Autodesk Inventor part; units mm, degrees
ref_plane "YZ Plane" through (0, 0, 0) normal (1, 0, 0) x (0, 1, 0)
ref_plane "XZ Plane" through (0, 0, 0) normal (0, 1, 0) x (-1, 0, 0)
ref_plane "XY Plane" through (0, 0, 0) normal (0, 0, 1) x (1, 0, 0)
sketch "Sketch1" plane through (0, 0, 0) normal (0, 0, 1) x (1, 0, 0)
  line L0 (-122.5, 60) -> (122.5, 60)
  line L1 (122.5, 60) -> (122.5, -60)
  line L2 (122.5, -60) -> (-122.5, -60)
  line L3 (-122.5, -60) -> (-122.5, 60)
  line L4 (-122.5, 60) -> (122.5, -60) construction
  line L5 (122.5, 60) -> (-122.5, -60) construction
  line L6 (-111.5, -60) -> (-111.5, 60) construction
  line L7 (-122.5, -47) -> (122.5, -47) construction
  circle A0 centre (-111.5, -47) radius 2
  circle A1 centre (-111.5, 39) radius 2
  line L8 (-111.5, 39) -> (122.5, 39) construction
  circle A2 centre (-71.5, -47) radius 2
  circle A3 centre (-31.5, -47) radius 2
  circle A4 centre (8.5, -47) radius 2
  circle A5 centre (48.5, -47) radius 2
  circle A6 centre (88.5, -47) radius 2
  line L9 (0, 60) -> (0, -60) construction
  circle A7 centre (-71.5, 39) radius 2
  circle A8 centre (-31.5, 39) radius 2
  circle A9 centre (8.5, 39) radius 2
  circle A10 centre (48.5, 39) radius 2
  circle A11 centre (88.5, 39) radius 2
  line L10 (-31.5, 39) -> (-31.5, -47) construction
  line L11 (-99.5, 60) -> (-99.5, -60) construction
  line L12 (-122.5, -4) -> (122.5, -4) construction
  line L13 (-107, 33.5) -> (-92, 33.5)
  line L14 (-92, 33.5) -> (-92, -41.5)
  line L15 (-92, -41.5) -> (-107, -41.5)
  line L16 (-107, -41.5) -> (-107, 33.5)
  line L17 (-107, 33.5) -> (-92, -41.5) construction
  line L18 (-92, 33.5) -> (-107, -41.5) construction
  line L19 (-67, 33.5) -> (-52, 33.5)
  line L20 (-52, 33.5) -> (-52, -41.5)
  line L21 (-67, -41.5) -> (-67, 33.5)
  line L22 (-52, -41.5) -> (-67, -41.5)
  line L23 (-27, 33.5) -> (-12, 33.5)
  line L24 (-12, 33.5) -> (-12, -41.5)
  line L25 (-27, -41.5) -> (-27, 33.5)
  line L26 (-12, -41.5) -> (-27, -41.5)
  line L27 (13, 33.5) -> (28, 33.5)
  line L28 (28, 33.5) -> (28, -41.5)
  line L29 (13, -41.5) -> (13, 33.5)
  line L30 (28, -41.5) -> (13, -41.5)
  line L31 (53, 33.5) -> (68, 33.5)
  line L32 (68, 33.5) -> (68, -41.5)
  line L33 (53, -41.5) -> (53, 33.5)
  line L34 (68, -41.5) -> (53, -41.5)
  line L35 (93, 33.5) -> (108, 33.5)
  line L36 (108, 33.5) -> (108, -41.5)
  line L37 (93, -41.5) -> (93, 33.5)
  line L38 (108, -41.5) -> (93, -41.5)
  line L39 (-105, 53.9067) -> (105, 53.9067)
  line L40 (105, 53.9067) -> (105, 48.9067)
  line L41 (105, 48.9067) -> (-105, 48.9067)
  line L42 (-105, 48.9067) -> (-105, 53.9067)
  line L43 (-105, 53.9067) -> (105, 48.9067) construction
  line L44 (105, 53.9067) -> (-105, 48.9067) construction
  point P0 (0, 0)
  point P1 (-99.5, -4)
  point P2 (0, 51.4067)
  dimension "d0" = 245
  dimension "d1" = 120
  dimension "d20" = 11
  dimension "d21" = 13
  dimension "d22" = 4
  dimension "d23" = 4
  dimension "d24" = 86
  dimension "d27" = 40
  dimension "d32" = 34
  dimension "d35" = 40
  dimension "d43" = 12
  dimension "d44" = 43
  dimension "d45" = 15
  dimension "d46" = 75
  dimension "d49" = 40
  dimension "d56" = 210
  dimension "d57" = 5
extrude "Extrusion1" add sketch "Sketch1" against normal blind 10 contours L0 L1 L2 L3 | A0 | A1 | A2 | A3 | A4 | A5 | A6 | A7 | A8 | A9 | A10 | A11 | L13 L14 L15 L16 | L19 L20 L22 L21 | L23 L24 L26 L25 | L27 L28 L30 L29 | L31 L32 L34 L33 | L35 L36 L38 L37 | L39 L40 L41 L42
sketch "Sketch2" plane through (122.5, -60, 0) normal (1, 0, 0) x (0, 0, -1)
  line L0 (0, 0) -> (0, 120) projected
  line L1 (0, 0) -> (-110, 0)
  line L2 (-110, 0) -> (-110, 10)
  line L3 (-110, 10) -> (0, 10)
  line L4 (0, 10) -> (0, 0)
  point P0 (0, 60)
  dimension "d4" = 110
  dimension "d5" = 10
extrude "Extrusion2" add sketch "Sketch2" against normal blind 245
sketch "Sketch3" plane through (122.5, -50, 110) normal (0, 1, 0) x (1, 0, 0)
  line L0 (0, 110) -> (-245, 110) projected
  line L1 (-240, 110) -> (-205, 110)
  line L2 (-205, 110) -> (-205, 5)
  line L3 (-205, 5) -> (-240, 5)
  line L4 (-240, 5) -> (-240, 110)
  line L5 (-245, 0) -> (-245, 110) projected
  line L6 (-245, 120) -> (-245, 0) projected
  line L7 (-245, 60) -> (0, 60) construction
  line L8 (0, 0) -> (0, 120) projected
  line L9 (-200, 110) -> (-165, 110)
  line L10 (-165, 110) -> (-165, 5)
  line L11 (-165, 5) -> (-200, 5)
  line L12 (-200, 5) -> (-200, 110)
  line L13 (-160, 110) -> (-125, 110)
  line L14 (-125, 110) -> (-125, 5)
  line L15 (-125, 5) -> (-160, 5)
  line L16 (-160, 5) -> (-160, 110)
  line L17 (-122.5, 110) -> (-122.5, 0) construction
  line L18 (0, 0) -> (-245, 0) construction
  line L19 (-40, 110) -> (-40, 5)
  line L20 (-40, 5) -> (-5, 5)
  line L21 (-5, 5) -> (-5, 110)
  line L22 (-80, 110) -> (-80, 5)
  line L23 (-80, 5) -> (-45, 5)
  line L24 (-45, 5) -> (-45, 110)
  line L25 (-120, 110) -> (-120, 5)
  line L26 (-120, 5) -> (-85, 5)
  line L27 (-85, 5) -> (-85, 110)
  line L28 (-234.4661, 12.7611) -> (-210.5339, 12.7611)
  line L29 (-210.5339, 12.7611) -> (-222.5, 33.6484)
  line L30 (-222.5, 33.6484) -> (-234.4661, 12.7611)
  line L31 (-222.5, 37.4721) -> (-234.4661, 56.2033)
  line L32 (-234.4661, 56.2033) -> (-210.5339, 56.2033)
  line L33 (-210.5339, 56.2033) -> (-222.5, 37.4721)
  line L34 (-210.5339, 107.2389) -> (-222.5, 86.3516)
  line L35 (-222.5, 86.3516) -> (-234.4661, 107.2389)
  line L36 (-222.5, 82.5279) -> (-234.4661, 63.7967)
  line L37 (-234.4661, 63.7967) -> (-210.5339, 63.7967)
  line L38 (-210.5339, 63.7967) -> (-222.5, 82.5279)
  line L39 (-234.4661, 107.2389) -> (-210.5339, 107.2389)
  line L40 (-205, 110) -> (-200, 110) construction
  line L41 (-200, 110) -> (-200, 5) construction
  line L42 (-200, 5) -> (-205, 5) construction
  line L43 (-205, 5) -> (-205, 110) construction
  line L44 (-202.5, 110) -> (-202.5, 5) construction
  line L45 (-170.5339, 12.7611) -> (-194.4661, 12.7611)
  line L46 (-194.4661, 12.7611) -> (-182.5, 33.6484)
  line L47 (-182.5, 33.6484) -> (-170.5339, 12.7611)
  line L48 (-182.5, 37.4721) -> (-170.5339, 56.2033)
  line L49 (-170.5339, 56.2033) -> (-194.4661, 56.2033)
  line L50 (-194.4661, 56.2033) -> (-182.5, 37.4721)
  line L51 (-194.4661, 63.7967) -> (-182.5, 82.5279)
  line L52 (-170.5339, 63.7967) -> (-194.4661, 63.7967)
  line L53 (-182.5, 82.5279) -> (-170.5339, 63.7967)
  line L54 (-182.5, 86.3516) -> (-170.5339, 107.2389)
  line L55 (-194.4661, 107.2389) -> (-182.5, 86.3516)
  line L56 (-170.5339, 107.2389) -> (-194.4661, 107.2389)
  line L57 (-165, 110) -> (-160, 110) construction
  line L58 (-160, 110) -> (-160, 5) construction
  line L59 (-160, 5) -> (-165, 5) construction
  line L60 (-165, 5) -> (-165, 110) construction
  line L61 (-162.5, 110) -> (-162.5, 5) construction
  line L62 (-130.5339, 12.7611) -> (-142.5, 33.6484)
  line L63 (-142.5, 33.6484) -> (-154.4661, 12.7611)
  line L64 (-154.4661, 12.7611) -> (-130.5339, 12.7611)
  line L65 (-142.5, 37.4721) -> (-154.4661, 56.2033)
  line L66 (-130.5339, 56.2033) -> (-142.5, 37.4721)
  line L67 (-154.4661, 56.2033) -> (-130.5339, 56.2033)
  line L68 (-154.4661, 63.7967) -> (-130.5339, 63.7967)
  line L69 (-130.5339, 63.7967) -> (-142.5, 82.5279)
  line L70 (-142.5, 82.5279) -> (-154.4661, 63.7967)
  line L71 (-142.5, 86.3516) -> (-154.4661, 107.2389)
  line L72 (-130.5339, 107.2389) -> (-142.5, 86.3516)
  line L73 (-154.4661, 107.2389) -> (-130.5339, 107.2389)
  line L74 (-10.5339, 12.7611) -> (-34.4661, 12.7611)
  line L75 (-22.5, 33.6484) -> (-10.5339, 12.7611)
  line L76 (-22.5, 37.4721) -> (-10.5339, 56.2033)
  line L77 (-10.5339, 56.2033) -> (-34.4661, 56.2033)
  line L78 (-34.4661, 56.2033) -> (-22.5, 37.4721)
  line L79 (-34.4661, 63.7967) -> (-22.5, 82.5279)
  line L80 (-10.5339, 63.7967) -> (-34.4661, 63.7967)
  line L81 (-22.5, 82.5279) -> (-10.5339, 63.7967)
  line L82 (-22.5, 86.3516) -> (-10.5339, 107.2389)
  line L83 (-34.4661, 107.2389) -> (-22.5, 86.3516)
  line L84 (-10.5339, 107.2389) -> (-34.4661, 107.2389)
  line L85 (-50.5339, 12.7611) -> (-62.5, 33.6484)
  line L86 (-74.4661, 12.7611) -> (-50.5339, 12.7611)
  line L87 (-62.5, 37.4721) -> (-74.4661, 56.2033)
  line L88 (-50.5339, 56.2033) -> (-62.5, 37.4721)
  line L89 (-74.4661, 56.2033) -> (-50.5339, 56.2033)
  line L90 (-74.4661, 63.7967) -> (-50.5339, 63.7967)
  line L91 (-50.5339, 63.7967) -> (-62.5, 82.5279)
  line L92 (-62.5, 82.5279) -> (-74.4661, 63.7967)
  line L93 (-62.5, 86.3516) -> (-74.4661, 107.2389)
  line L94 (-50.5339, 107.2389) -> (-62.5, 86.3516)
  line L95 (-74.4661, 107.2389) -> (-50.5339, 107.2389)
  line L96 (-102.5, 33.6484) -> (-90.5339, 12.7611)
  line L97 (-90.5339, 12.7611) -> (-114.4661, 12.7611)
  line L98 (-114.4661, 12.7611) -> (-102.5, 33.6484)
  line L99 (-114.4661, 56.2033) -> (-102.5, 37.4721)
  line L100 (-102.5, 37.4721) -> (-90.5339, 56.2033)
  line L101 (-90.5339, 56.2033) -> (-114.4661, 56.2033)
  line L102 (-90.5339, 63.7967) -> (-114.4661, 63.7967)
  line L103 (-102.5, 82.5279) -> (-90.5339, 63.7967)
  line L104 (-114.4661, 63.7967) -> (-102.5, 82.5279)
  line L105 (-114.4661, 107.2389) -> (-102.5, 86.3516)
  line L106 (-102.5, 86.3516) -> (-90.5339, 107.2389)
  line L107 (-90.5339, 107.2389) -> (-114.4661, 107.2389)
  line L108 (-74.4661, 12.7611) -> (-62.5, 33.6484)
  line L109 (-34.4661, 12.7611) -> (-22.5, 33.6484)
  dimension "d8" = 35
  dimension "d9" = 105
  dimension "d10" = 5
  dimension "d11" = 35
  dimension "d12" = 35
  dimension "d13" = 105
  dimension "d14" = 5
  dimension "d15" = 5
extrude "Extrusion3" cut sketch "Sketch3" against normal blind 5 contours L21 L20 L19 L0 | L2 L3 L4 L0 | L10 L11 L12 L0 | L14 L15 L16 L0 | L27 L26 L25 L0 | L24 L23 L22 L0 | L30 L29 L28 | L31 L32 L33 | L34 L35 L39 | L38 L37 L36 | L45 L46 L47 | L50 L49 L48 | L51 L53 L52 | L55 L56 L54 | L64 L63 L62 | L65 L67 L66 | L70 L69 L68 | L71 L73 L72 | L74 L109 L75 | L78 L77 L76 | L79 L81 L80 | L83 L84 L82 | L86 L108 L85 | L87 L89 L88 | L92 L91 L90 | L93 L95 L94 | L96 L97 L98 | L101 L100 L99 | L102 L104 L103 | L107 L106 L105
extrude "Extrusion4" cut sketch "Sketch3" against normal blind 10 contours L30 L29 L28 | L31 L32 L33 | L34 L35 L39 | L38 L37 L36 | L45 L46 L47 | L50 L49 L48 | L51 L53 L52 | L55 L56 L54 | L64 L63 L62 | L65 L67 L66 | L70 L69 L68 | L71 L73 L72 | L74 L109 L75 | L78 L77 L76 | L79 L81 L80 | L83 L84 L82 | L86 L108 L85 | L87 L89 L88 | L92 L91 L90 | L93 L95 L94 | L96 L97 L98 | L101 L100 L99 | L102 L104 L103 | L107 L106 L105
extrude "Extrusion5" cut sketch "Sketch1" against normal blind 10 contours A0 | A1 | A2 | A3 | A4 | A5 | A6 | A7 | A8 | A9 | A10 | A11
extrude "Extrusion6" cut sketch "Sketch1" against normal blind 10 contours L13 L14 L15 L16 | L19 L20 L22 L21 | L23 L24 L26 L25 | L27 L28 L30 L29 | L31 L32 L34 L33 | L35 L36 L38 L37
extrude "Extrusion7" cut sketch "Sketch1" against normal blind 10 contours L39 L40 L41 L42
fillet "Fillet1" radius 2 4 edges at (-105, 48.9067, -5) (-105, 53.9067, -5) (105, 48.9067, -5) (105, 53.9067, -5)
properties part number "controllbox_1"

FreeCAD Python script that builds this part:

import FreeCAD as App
import Part
import Sketcher

V = App.Vector
Q = App.Units.Quantity


def edges_at(feature, points):
    """Names of the edges that pass closest to the given points."""
    edges = feature.Shape.Edges
    near = lambda p: min(range(len(edges)), key=lambda i: edges[i].distToShape(Part.Vertex(*p))[0])
    return sorted({f"Edge{near(p) + 1}" for p in points})


def add_polygon(sketch, points):
    """Adds a closed chain of lines whose ends are joined by coincident constraints."""
    first, n = sketch.GeometryCount, len(points)
    for a, b in zip(points, points[1:] + points[:1]):
        sketch.addGeometry(Part.LineSegment(App.Vector(*a, 0), App.Vector(*b, 0)), False)
    for i in range(n):
        sketch.addConstraint(Sketcher.Constraint("Coincident", first + i, 2, first + (i + 1) % n, 1))

doc = App.newDocument("Part")
body = doc.addObject("PartDesign::Body", "Body")

# Sketch on XY plane
sketch1 = body.newObject("Sketcher::SketchObject", "Sketch")
sketch1.AttachmentSupport = (doc.getObject("XY_Plane"), [""])
sketch1.MapMode = "FlatFace"
add_polygon(sketch1, [(122, 60), (-122, 60), (-122, -60), (122, -60)])  # lines 0-3
sketch1.addConstraint([
    Sketcher.Constraint("Horizontal", 0),
    Sketcher.Constraint("Vertical", 1),
    Sketcher.Constraint("Horizontal", 2),
    Sketcher.Constraint("Vertical", 3),
    Sketcher.Constraint("Symmetric", 0, 2, 2, 2, -1, 1),
    Sketcher.Constraint("DistanceX", 0, 2, 0, 1, Q("245 mm")),
    Sketcher.Constraint("DistanceY", 1, 2, 1, 1, Q("120 mm")),
])
pad1 = body.newObject("PartDesign::Pad", "Pad")
pad1.Profile = sketch1
pad1.Length = 10
pad1.Reversed = True

# Sketch on YZ plane
sketch2 = body.newObject("Sketcher::SketchObject", "Sketch001")
sketch2.AttachmentSupport = (doc.getObject("YZ_Plane"), [""])
sketch2.MapMode = "FlatFace"
sketch2.AttachmentOffset = App.Placement(V(0, 0, 122.5), App.Rotation())
add_polygon(sketch2, [(-60, 110), (-60, 0), (-50, 0), (-50, 110)])  # lines 0-3
sketch2.addConstraint([
    Sketcher.Constraint("Vertical", 0),
    Sketcher.Constraint("Horizontal", 1),
    Sketcher.Constraint("Vertical", 2),
    Sketcher.Constraint("Horizontal", 3),
    Sketcher.Constraint("PointOnObject", 0, 2, -1),
    Sketcher.Constraint("DistanceX", 1, 1, 1, 2, Q("10 mm")),
    Sketcher.Constraint("DistanceY", 0, 2, 0, 1, Q("110 mm")),
    Sketcher.Constraint("DistanceX", 0, 2, -1, 1, Q("60 mm")),
])
pad2 = body.newObject("PartDesign::Pad", "Pad001")
pad2.Profile = sketch2
pad2.Length = 245
pad2.Reversed = True

# Sketch on XZ plane
sketch3 = body.newObject("Sketcher::SketchObject", "Sketch002")
sketch3.AttachmentSupport = (doc.getObject("XZ_Plane"), [""])
sketch3.MapMode = "FlatFace"
sketch3.AttachmentOffset = App.Placement(V(0, 0, 50), App.Rotation())
add_polygon(sketch3, [(118, 105), (118, 0), (82, 0), (82, 105)])  # lines 0-3
add_polygon(sketch3, [(-82, 105), (-82, 0), (-118, 0), (-118, 105)])  # lines 4-7
add_polygon(sketch3, [(-42, 105), (-42, 0), (-78, 0), (-78, 105)])  # lines 8-11
add_polygon(sketch3, [(-2, 105), (-2, 0), (-38, 0), (-38, 105)])  # lines 12-15
add_polygon(sketch3, [(38, 105), (38, 0), (2, 0), (2, 105)])  # lines 16-19
add_polygon(sketch3, [(78, 105), (78, 0), (42, 0), (42, 105)])  # lines 20-23
sketch3.addConstraint([
    Sketcher.Constraint("Vertical", 0),
    Sketcher.Constraint("Horizontal", 1),
    Sketcher.Constraint("Vertical", 2),
    Sketcher.Constraint("Horizontal", 3),
    Sketcher.Constraint("Vertical", 4),
    Sketcher.Constraint("Horizontal", 5),
    Sketcher.Constraint("Vertical", 6),
    Sketcher.Constraint("Horizontal", 7),
    Sketcher.Constraint("Vertical", 8),
    Sketcher.Constraint("Horizontal", 9),
    Sketcher.Constraint("Vertical", 10),
    Sketcher.Constraint("Horizontal", 11),
    Sketcher.Constraint("Vertical", 12),
    Sketcher.Constraint("Horizontal", 13),
    Sketcher.Constraint("Vertical", 14),
    Sketcher.Constraint("Horizontal", 15),
    Sketcher.Constraint("Vertical", 16),
    Sketcher.Constraint("Horizontal", 17),
    Sketcher.Constraint("Vertical", 18),
    Sketcher.Constraint("Horizontal", 19),
    Sketcher.Constraint("Vertical", 20),
    Sketcher.Constraint("Horizontal", 21),
    Sketcher.Constraint("Vertical", 22),
    Sketcher.Constraint("Horizontal", 23),
    Sketcher.Constraint("Symmetric", 1, 2, 4, 2, -1, 1),
    Sketcher.Constraint("Symmetric", 13, 2, 16, 2, -1, 1),
    Sketcher.Constraint("Symmetric", 9, 2, 20, 2, -1, 1),
    Sketcher.Constraint("Symmetric", 0, 2, 5, 2, -2),
    Sketcher.Constraint("Symmetric", 12, 2, 17, 2, -2),
    Sketcher.Constraint("Symmetric", 8, 2, 21, 2, -2),
    Sketcher.Constraint("Horizontal", 3, 2, 6, 2),
    Sketcher.Constraint("Horizontal", 7, 2, 10, 2),
    Sketcher.Constraint("Horizontal", 11, 2, 14, 2),
    Sketcher.Constraint("Horizontal", 15, 2, 18, 2),
    Sketcher.Constraint("Horizontal", 19, 2, 22, 2),
    Sketcher.Constraint("Equal", 7, 9),
    Sketcher.Constraint("Equal", 11, 13),
    Sketcher.Constraint("DistanceX", 1, 2, 1, 1, Q("35 mm")),
    Sketcher.Constraint("DistanceY", 0, 2, 0, 1, Q("105 mm")),
    Sketcher.Constraint("DistanceX", 4, 2, 9, 2, Q("5 mm")),
    Sketcher.Constraint("DistanceX", 8, 2, 13, 2, Q("5 mm")),
    Sketcher.Constraint("DistanceX", 12, 2, 17, 2, Q("5 mm")),
])
pocket1 = body.newObject("PartDesign::Pocket", "Pocket")
pocket1.Profile = sketch3
pocket1.Length = 5
pocket1.Reversed = True

# Sketch on XZ plane
sketch4 = body.newObject("Sketcher::SketchObject", "Sketch003")
sketch4.AttachmentSupport = (doc.getObject("XZ_Plane"), [""])
sketch4.MapMode = "FlatFace"
sketch4.AttachmentOffset = App.Placement(V(0, 0, 50), App.Rotation())
add_polygon(sketch4, [(-100, 76), (-112, 97), (-88, 97)])  # lines 0-2
add_polygon(sketch4, [(-112, 54), (-100, 73), (-88, 54)])  # lines 3-5
add_polygon(sketch4, [(-100, 24), (-88, 3), (-112, 3)])  # lines 6-8
add_polygon(sketch4, [(-88, 46), (-100, 27), (-112, 46)])  # lines 9-11
add_polygon(sketch4, [(-72, 97), (-48, 97), (-60, 76)])  # lines 12-14
add_polygon(sketch4, [(-72, 54), (-60, 73), (-48, 54)])  # lines 15-17
add_polygon(sketch4, [(-60, 27), (-72, 46), (-48, 46)])  # lines 18-20
add_polygon(sketch4, [(-72, 3), (-60, 24), (-48, 3)])  # lines 21-23
add_polygon(sketch4, [(-32, 97), (-8, 97), (-20, 76)])  # lines 24-26
add_polygon(sketch4, [(-32, 54), (-20, 73), (-8, 54)])  # lines 27-29
add_polygon(sketch4, [(-20, 27), (-32, 46), (-8, 46)])  # lines 30-32
add_polygon(sketch4, [(-32, 3), (-20, 24), (-8, 3)])  # lines 33-35
add_polygon(sketch4, [(88, 97), (112, 97), (100, 76)])  # lines 36-38
add_polygon(sketch4, [(88, 54), (100, 73), (112, 54)])  # lines 39-41
add_polygon(sketch4, [(100, 27), (88, 46), (112, 46)])  # lines 42-44
add_polygon(sketch4, [(88, 3), (100, 24), (112, 3)])  # lines 45-47
add_polygon(sketch4, [(48, 97), (72, 97), (60, 76)])  # lines 48-50
add_polygon(sketch4, [(48, 54), (60, 73), (72, 54)])  # lines 51-53
add_polygon(sketch4, [(60, 27), (48, 46), (72, 46)])  # lines 54-56
add_polygon(sketch4, [(48, 3), (60, 24), (72, 3)])  # lines 57-59
add_polygon(sketch4, [(32, 97), (20, 76), (8, 97)])  # lines 60-62
add_polygon(sketch4, [(32, 54), (8, 54), (20, 73)])  # lines 63-65
add_polygon(sketch4, [(8, 46), (32, 46), (20, 27)])  # lines 66-68
add_polygon(sketch4, [(32, 3), (8, 3), (20, 24)])  # lines 69-71
sketch4.addConstraint([
    Sketcher.Constraint("Horizontal", 1),
    Sketcher.Constraint("Horizontal", 5),
    Sketcher.Constraint("Horizontal", 7),
    Sketcher.Constraint("Horizontal", 11),
    Sketcher.Constraint("Horizontal", 12),
    Sketcher.Constraint("Horizontal", 17),
    Sketcher.Constraint("Horizontal", 19),
    Sketcher.Constraint("Horizontal", 23),
    Sketcher.Constraint("Horizontal", 24),
    Sketcher.Constraint("Horizontal", 29),
    Sketcher.Constraint("Horizontal", 31),
    Sketcher.Constraint("Horizontal", 35),
    Sketcher.Constraint("Horizontal", 36),
    Sketcher.Constraint("Horizontal", 41),
    Sketcher.Constraint("Horizontal", 43),
    Sketcher.Constraint("Horizontal", 47),
    Sketcher.Constraint("Horizontal", 48),
    Sketcher.Constraint("Horizontal", 53),
    Sketcher.Constraint("Horizontal", 55),
    Sketcher.Constraint("Horizontal", 59),
    Sketcher.Constraint("Horizontal", 62),
    Sketcher.Constraint("Horizontal", 63),
    Sketcher.Constraint("Horizontal", 66),
    Sketcher.Constraint("Horizontal", 69),
    Sketcher.Constraint("Symmetric", 0, 2, 36, 2, -2),
    Sketcher.Constraint("Symmetric", 2, 2, 37, 2, -2),
    Sketcher.Constraint("Symmetric", 3, 2, 39, 2, -2),
    Sketcher.Constraint("Symmetric", 5, 2, 40, 2, -2),
    Sketcher.Constraint("Symmetric", 11, 2, 42, 2, -2),
    Sketcher.Constraint("Symmetric", 9, 2, 44, 2, -2),
    Sketcher.Constraint("Symmetric", 8, 2, 45, 2, -2),
    Sketcher.Constraint("Symmetric", 7, 2, 46, 2, -2),
    Sketcher.Constraint("Symmetric", 14, 2, 48, 2, -2),
    Sketcher.Constraint("Symmetric", 13, 2, 49, 2, -2),
    Sketcher.Constraint("Symmetric", 15, 2, 51, 2, -2),
    Sketcher.Constraint("Symmetric", 17, 2, 52, 2, -2),
    Sketcher.Constraint("Symmetric", 19, 2, 54, 2, -2),
    Sketcher.Constraint("Symmetric", 20, 2, 56, 2, -2),
    Sketcher.Constraint("Symmetric", 21, 2, 57, 2, -2),
    Sketcher.Constraint("Symmetric", 23, 2, 58, 2, -2),
    Sketcher.Constraint("Symmetric", 25, 2, 60, 2, -2),
    Sketcher.Constraint("Symmetric", 24, 2, 61, 2, -2),
    Sketcher.Constraint("Symmetric", 28, 2, 63, 2, -2),
    Sketcher.Constraint("Symmetric", 27, 2, 64, 2, -2),
    Sketcher.Constraint("Symmetric", 30, 2, 66, 2, -2),
    Sketcher.Constraint("Symmetric", 32, 2, 67, 2, -2),
    Sketcher.Constraint("Symmetric", 34, 2, 69, 2, -2),
    Sketcher.Constraint("Symmetric", 33, 2, 70, 2, -2),
    Sketcher.Constraint("Parallel", 0, 6),
    Sketcher.Constraint("Parallel", 2, 8),
    Sketcher.Constraint("Parallel", 3, 9),
    Sketcher.Constraint("Parallel", 4, 10),
    Sketcher.Constraint("Parallel", 8, 13),
    Sketcher.Constraint("Parallel", 6, 14),
    Sketcher.Constraint("Parallel", 9, 15),
    Sketcher.Constraint("Parallel", 10, 16),
    Sketcher.Constraint("Parallel", 16, 18),
    Sketcher.Constraint("Parallel", 15, 20),
    Sketcher.Constraint("Parallel", 13, 21),
    Sketcher.Constraint("Parallel", 14, 22),
    Sketcher.Constraint("Parallel", 21, 25),
    Sketcher.Constraint("Parallel", 22, 26),
    Sketcher.Constraint("Parallel", 20, 27),
    Sketcher.Constraint("Parallel", 18, 28),
    Sketcher.Constraint("Parallel", 28, 30),
    Sketcher.Constraint("Parallel", 27, 32),
    Sketcher.Constraint("Parallel", 25, 33),
    Sketcher.Constraint("Parallel", 26, 34),
    Sketcher.Constraint("Parallel", 33, 37),
    Sketcher.Constraint("Parallel", 34, 38),
    Sketcher.Constraint("Parallel", 32, 39),
    Sketcher.Constraint("Parallel", 30, 40),
    Sketcher.Constraint("Parallel", 39, 44),
    Sketcher.Constraint("Parallel", 37, 45),
    Sketcher.Constraint("Parallel", 46, 50),
    Sketcher.Constraint("Parallel", 44, 51),
    Sketcher.Constraint("Parallel", 51, 56),
    Sketcher.Constraint("Parallel", 49, 57),
    Sketcher.Constraint("Parallel", 57, 60),
    Sketcher.Constraint("Parallel", 54, 65),
    Sketcher.Constraint("Parallel", 65, 68),
    Sketcher.Constraint("Parallel", 61, 71),
    Sketcher.Constraint("Horizontal", 1, 2, 12, 2),
    Sketcher.Constraint("Horizontal", 2, 2, 13, 2),
    Sketcher.Constraint("Horizontal", 3, 2, 15, 2),
    Sketcher.Constraint("Horizontal", 5, 2, 16, 2),
    Sketcher.Constraint("Horizontal", 11, 2, 18, 2),
    Sketcher.Constraint("Horizontal", 9, 2, 20, 2),
    Sketcher.Constraint("Horizontal", 8, 2, 21, 2),
    Sketcher.Constraint("Horizontal", 7, 2, 22, 2),
    Sketcher.Constraint("Horizontal", 14, 2, 24, 2),
    Sketcher.Constraint("Horizontal", 13, 2, 25, 2),
    Sketcher.Constraint("Horizontal", 15, 2, 27, 2),
    Sketcher.Constraint("Horizontal", 17, 2, 28, 2),
    Sketcher.Constraint("Horizontal", 19, 2, 30, 2),
    Sketcher.Constraint("Horizontal", 20, 2, 32, 2),
    Sketcher.Constraint("Horizontal", 21, 2, 33, 2),
    Sketcher.Constraint("Horizontal", 23, 2, 34, 2),
    Sketcher.Constraint("Vertical", 2, 2, 3, 2),
    Sketcher.Constraint("Vertical", 1, 2, 4, 2),
    Sketcher.Constraint("Vertical", 4, 2, 6, 2),
    Sketcher.Constraint("Vertical", 5, 2, 7, 2),
    Sketcher.Constraint("Vertical", 8, 2, 9, 2),
    Sketcher.Constraint("Vertical", 7, 2, 10, 2),
    Sketcher.Constraint("Vertical", 13, 2, 15, 2),
    Sketcher.Constraint("Vertical", 17, 2, 18, 2),
    Sketcher.Constraint("Vertical", 20, 2, 21, 2),
    Sketcher.Constraint("Vertical", 25, 2, 27, 2),
    Sketcher.Constraint("Vertical", 29, 2, 30, 2),
    Sketcher.Constraint("Vertical", 32, 2, 33, 2),
    Sketcher.Constraint("DistanceX", 2, 2, -1, 1, Q("100 mm")),
    Sketcher.Constraint("DistanceX", 13, 2, -1, 1, Q("60 mm")),
    Sketcher.Constraint("DistanceX", 25, 2, -1, 1, Q("20 mm")),
    Sketcher.Constraint("Distance", 0, Q("24.072 mm")),
    Sketcher.Constraint("DistanceX", 1, 1, 1, 2, Q("23.9322 mm")),
    Sketcher.Constraint("DistanceY", -1, 1, 0, 2, Q("97.239 mm")),
    Sketcher.Constraint("DistanceY", -1, 1, 3, 2, Q("72.528 mm")),
    Sketcher.Constraint("DistanceY", -1, 1, 6, 2, Q("2.761 mm")),
    Sketcher.Constraint("DistanceY", -1, 1, 9, 2, Q("27.472 mm")),
    Sketcher.Constraint("Distance", 3, Q("22.2271 mm")),
])
pocket2 = body.newObject("PartDesign::Pocket", "Pocket001")
pocket2.Profile = sketch4
pocket2.Length = 10
pocket2.Reversed = True

# Sketch on XY plane
sketch5 = body.newObject("Sketcher::SketchObject", "Sketch004")
sketch5.AttachmentSupport = (doc.getObject("XY_Plane"), [""])
sketch5.MapMode = "FlatFace"
sketch5.addGeometry([
    Part.Circle(V(-111.5, -47, 0), V(0, 0, 1), 2),  # 0
    Part.Circle(V(-111.5, 39, 0), V(0, 0, 1), 2),  # 1
    Part.Circle(V(-71.5, -47, 0), V(0, 0, 1), 2),  # 2
    Part.Circle(V(-31.5, -47, 0), V(0, 0, 1), 2),  # 3
    Part.Circle(V(8.5, -47, 0), V(0, 0, 1), 2),  # 4
    Part.Circle(V(48.5, -47, 0), V(0, 0, 1), 2),  # 5
    Part.Circle(V(88.5, -47, 0), V(0, 0, 1), 2),  # 6
    Part.Circle(V(-71.5, 39, 0), V(0, 0, 1), 2),  # 7
    Part.Circle(V(-31.5, 39, 0), V(0, 0, 1), 2),  # 8
    Part.Circle(V(8.5, 39, 0), V(0, 0, 1), 2),  # 9
    Part.Circle(V(48.5, 39, 0), V(0, 0, 1), 2),  # 10
    Part.Circle(V(88.5, 39, 0), V(0, 0, 1), 2),  # 11
], False)
sketch5.addConstraint([
    Sketcher.Constraint("Equal", 0, 1),
    Sketcher.Constraint("Equal", 1, 2),
    Sketcher.Constraint("Equal", 2, 3),
    Sketcher.Constraint("Equal", 3, 4),
    Sketcher.Constraint("Equal", 4, 5),
    Sketcher.Constraint("Equal", 5, 6),
    Sketcher.Constraint("Equal", 6, 7),
    Sketcher.Constraint("Equal", 7, 8),
    Sketcher.Constraint("Equal", 8, 9),
    Sketcher.Constraint("Equal", 9, 10),
    Sketcher.Constraint("Equal", 10, 11),
    Sketcher.Constraint("Horizontal", 0, 3, 2, 3),
    Sketcher.Constraint("Horizontal", 2, 3, 3, 3),
    Sketcher.Constraint("Horizontal", 3, 3, 4, 3),
    Sketcher.Constraint("Horizontal", 4, 3, 5, 3),
    Sketcher.Constraint("Horizontal", 5, 3, 6, 3),
    Sketcher.Constraint("Horizontal", 1, 3, 7, 3),
    Sketcher.Constraint("Horizontal", 7, 3, 8, 3),
    Sketcher.Constraint("Horizontal", 8, 3, 9, 3),
    Sketcher.Constraint("Horizontal", 9, 3, 10, 3),
    Sketcher.Constraint("Horizontal", 10, 3, 11, 3),
    Sketcher.Constraint("Vertical", 0, 3, 1, 3),
    Sketcher.Constraint("Vertical", 2, 3, 7, 3),
    Sketcher.Constraint("Vertical", 3, 3, 8, 3),
    Sketcher.Constraint("Vertical", 4, 3, 9, 3),
    Sketcher.Constraint("Vertical", 5, 3, 10, 3),
    Sketcher.Constraint("Vertical", 6, 3, 11, 3),
    Sketcher.Constraint("Diameter", 0, Q("4 mm")),
    Sketcher.Constraint("DistanceY", 0, 3, 1, 3, Q("86 mm")),
    Sketcher.Constraint("DistanceX", 0, 3, 2, 3, Q("40 mm")),
    Sketcher.Constraint("DistanceX", 2, 3, 3, 3, Q("40 mm")),
    Sketcher.Constraint("DistanceX", 3, 3, 4, 3, Q("40 mm")),
    Sketcher.Constraint("DistanceX", 4, 3, 5, 3, Q("40 mm")),
    Sketcher.Constraint("DistanceX", 5, 3, 6, 3, Q("40 mm")),
    Sketcher.Constraint("DistanceY", 0, 3, -1, 1, Q("47 mm")),
    Sketcher.Constraint("DistanceX", 0, 3, -1, 1, Q("111.5 mm")),
])
pocket3 = body.newObject("PartDesign::Pocket", "Pocket002")
pocket3.Profile = sketch5
pocket3.Length = 10

# Sketch on XY plane
sketch6 = body.newObject("Sketcher::SketchObject", "Sketch005")
sketch6.AttachmentSupport = (doc.getObject("XY_Plane"), [""])
sketch6.MapMode = "FlatFace"
add_polygon(sketch6, [(-92, 34), (-107, 34), (-107, -42), (-92, -42)])  # lines 0-3
add_polygon(sketch6, [(-52, 34), (-67, 34), (-67, -42), (-52, -42)])  # lines 4-7
add_polygon(sketch6, [(-12, 34), (-27, 34), (-27, -42), (-12, -42)])  # lines 8-11
add_polygon(sketch6, [(28, 34), (13, 34), (13, -42), (28, -42)])  # lines 12-15
add_polygon(sketch6, [(68, 34), (53, 34), (53, -42), (68, -42)])  # lines 16-19
add_polygon(sketch6, [(108, 34), (93, 34), (93, -42), (108, -42)])  # lines 20-23
sketch6.addConstraint([
    Sketcher.Constraint("Horizontal", 0),
    Sketcher.Constraint("Vertical", 1),
    Sketcher.Constraint("Horizontal", 2),
    Sketcher.Constraint("Vertical", 3),
    Sketcher.Constraint("Horizontal", 4),
    Sketcher.Constraint("Vertical", 5),
    Sketcher.Constraint("Horizontal", 6),
    Sketcher.Constraint("Vertical", 7),
    Sketcher.Constraint("Horizontal", 8),
    Sketcher.Constraint("Vertical", 9),
    Sketcher.Constraint("Horizontal", 10),
    Sketcher.Constraint("Vertical", 11),
    Sketcher.Constraint("Horizontal", 12),
    Sketcher.Constraint("Vertical", 13),
    Sketcher.Constraint("Horizontal", 14),
    Sketcher.Constraint("Vertical", 15),
    Sketcher.Constraint("Horizontal", 16),
    Sketcher.Constraint("Vertical", 17),
    Sketcher.Constraint("Horizontal", 18),
    Sketcher.Constraint("Vertical", 19),
    Sketcher.Constraint("Horizontal", 20),
    Sketcher.Constraint("Vertical", 21),
    Sketcher.Constraint("Horizontal", 22),
    Sketcher.Constraint("Vertical", 23),
    Sketcher.Constraint("Horizontal", 3, 2, 4, 2),
    Sketcher.Constraint("Horizontal", 2, 2, 5, 2),
    Sketcher.Constraint("Horizontal", 7, 2, 8, 2),
    Sketcher.Constraint("Horizontal", 6, 2, 9, 2),
    Sketcher.Constraint("Horizontal", 11, 2, 12, 2),
    Sketcher.Constraint("Horizontal", 10, 2, 13, 2),
    Sketcher.Constraint("Horizontal", 15, 2, 16, 2),
    Sketcher.Constraint("Horizontal", 14, 2, 17, 2),
    Sketcher.Constraint("Horizontal", 19, 2, 20, 2),
    Sketcher.Constraint("Horizontal", 18, 2, 21, 2),
    Sketcher.Constraint("Equal", 2, 4),
    Sketcher.Constraint("Equal", 6, 8),
    Sketcher.Constraint("Equal", 10, 12),
    Sketcher.Constraint("Equal", 14, 16),
    Sketcher.Constraint("Equal", 18, 20),
    Sketcher.Constraint("DistanceX", 0, 2, 0, 1, Q("15 mm")),
    Sketcher.Constraint("DistanceY", 1, 2, 1, 1, Q("75 mm")),
    Sketcher.Constraint("DistanceX", 10, 2, -1, 1, Q("12 mm")),
    Sketcher.Constraint("DistanceX", -1, 1, 12, 2, Q("13 mm")),
    Sketcher.Constraint("DistanceX", 0, 2, 4, 2, Q("40 mm")),
    Sketcher.Constraint("DistanceX", 4, 2, 8, 2, Q("40 mm")),
    Sketcher.Constraint("DistanceX", 12, 2, 16, 2, Q("40 mm")),
    Sketcher.Constraint("DistanceX", 16, 2, 20, 2, Q("40 mm")),
    Sketcher.Constraint("DistanceY", -1, 1, 0, 2, Q("33.5 mm")),
])
pocket4 = body.newObject("PartDesign::Pocket", "Pocket003")
pocket4.Profile = sketch6
pocket4.Length = 10

# Sketch on XY plane
sketch7 = body.newObject("Sketcher::SketchObject", "Sketch006")
sketch7.AttachmentSupport = (doc.getObject("XY_Plane"), [""])
sketch7.MapMode = "FlatFace"
add_polygon(sketch7, [(105, 54), (-105, 54), (-105, 49), (105, 49)])  # lines 0-3
sketch7.addConstraint([
    Sketcher.Constraint("Horizontal", 0),
    Sketcher.Constraint("Vertical", 1),
    Sketcher.Constraint("Horizontal", 2),
    Sketcher.Constraint("Vertical", 3),
    Sketcher.Constraint("DistanceX", 0, 2, 0, 1, Q("210 mm")),
    Sketcher.Constraint("DistanceY", 1, 2, 1, 1, Q("5 mm")),
    Sketcher.Constraint("DistanceX", 0, 2, -1, 1, Q("105 mm")),
    Sketcher.Constraint("DistanceY", -1, 1, 0, 2, Q("53.9067 mm")),
])
pocket5 = body.newObject("PartDesign::Pocket", "Pocket004")
pocket5.Profile = sketch7
pocket5.Length = 10
doc.recompute()

fillet = body.newObject("PartDesign::Fillet", "Fillet")
fillet.Base = (pocket5, edges_at(pocket5, [
    (-105, 48.907, -5),
    (-105, 53.907, -5),
    (105, 48.907, -5),
    (105, 53.907, -5),
]))
fillet.Radius = 2

doc.recompute()
